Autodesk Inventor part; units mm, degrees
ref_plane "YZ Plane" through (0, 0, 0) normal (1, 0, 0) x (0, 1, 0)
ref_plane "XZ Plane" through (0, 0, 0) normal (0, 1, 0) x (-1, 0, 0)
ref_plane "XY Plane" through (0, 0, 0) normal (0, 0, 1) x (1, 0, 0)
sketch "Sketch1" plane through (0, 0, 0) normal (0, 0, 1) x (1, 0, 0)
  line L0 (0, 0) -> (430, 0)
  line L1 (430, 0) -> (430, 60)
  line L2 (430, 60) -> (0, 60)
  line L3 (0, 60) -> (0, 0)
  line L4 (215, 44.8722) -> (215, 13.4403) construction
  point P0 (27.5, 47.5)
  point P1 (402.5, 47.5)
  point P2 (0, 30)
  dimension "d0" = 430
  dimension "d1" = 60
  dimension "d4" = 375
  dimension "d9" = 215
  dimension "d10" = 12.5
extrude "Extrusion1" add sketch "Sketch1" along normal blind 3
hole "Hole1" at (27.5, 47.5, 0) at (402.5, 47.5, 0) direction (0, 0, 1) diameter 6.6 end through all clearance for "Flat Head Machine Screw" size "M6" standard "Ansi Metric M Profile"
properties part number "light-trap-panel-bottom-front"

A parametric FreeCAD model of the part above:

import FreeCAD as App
import Part
import Sketcher
from FreeCAD import Vector
Q = App.Units.Quantity


def add_polygon(sketch, points):
    """Adds a closed chain of lines whose ends are joined by coincident constraints."""
    first, n = sketch.GeometryCount, len(points)
    for a, b in zip(points, points[1:] + points[:1]):
        sketch.addGeometry(Part.LineSegment(App.Vector(*a, 0), App.Vector(*b, 0)), False)
    for i in range(n):
        sketch.addConstraint(Sketcher.Constraint("Coincident", first + i, 2, first + (i + 1) % n, 1))

doc = App.newDocument("Part")
body = doc.addObject("PartDesign::Body", "Body")

# Sketch on XY plane
sketch1 = body.newObject("Sketcher::SketchObject", "Sketch")
sketch1.AttachmentSupport = (doc.getObject("XY_Plane"), [""])
sketch1.MapMode = "FlatFace"
add_polygon(sketch1, [(0, 60), (0, 0), (430, 0), (430, 60)])  # lines 0-3
sketch1.addConstraint(Sketcher.Constraint("Vertical", 0))
sketch1.addConstraint(Sketcher.Constraint("Horizontal", 1))
sketch1.addConstraint(Sketcher.Constraint("Vertical", 2))
sketch1.addConstraint(Sketcher.Constraint("Horizontal", 3))
sketch1.addConstraint(Sketcher.Constraint("Coincident", 0, 2, -1, 1))
sketch1.addConstraint(Sketcher.Constraint("DistanceX", 1, 1, 1, 2, Q("430 mm")))
sketch1.addConstraint(Sketcher.Constraint("DistanceY", 0, 2, 0, 1, Q("60 mm")))
pad1 = body.newObject("PartDesign::Pad", "Pad")
pad1.Profile = sketch1
pad1.Length = 3

# Sketch on XY plane
sketch2 = body.newObject("Sketcher::SketchObject", "Sketch001")
sketch2.AttachmentSupport = (doc.getObject("XY_Plane"), [""])
sketch2.MapMode = "FlatFace"
sketch2.addGeometry(Part.Circle(Vector(27.5, 47.5, 0), Vector(0, 0, 1), 3.3), False)
sketch2.addGeometry(Part.Circle(Vector(402.5, 47.5, 0), Vector(0, 0, 1), 3.3), False)
sketch2.addConstraint(Sketcher.Constraint("Equal", 0, 1))
sketch2.addConstraint(Sketcher.Constraint("Horizontal", 0, 3, 1, 3))
sketch2.addConstraint(Sketcher.Constraint("Diameter", 0, Q("6.6 mm")))
sketch2.addConstraint(Sketcher.Constraint("DistanceX", 0, 3, 1, 3, Q("375 mm")))
sketch2.addConstraint(Sketcher.Constraint("DistanceX", -1, 1, 0, 3, Q("27.5 mm")))
sketch2.addConstraint(Sketcher.Constraint("DistanceY", -1, 1, 0, 3, Q("47.5 mm")))
doc.recompute()
hole = body.newObject("PartDesign::Hole", "Hole")
hole.Profile = sketch2
hole.ThreadType = "None"
hole.Diameter = 6.6
hole.DepthType = "ThroughAll"
hole.Reversed = True

doc.recompute()
